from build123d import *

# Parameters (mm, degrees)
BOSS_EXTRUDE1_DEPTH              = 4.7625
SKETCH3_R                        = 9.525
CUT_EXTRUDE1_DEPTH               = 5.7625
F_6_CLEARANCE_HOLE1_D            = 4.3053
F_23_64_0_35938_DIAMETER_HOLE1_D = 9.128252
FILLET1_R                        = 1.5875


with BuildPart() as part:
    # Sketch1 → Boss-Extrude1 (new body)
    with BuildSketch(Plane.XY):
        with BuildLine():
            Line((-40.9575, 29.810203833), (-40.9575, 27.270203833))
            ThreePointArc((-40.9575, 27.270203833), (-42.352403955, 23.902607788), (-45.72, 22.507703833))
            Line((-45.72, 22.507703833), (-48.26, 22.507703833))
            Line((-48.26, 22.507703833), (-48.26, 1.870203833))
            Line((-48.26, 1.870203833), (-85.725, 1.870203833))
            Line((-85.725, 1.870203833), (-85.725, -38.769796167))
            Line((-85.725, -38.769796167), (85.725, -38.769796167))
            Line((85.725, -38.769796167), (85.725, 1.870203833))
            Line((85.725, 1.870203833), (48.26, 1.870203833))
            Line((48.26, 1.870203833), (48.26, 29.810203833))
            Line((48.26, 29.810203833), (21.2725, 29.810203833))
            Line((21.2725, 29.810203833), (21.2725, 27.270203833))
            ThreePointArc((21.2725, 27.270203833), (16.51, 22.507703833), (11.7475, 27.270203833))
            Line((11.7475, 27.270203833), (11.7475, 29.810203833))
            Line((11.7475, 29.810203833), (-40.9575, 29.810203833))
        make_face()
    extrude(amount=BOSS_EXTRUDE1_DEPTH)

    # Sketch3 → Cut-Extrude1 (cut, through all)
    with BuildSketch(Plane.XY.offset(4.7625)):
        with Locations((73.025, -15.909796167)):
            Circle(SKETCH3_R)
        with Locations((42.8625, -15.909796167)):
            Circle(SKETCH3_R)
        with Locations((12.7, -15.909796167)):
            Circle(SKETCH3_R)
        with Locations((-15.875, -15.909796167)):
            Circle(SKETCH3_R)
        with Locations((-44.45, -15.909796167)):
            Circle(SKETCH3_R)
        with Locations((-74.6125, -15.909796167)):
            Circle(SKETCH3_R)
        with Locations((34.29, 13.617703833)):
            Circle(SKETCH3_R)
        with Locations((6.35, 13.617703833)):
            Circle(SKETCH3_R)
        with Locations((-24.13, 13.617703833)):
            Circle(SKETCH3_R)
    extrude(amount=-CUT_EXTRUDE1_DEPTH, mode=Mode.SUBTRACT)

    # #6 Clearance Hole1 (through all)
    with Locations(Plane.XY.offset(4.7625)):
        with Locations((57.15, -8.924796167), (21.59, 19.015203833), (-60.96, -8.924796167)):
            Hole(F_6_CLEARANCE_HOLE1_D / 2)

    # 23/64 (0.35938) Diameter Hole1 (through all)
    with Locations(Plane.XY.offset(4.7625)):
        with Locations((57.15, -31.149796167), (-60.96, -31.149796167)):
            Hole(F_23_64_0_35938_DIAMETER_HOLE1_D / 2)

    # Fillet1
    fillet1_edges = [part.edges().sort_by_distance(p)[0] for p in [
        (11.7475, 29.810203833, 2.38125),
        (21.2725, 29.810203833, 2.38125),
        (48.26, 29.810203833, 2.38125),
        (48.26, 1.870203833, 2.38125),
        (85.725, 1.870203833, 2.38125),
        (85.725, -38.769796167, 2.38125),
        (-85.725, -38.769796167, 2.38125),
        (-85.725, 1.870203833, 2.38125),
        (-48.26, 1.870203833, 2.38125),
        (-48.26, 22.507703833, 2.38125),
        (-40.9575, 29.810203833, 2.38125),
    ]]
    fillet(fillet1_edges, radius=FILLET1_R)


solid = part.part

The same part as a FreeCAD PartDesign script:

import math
import FreeCAD as App
import Part
import Sketcher
from FreeCAD import Vector
Q = App.Units.Quantity


def edges_at(feature, points):
    """Names of the edges that pass closest to the given points."""
    edges = feature.Shape.Edges
    near = lambda p: min(range(len(edges)), key=lambda i: edges[i].distToShape(Part.Vertex(*p))[0])
    return sorted({f"Edge{near(p) + 1}" for p in points})

doc = App.newDocument("Part")
body = doc.addObject("PartDesign::Body", "Body")

# Sketch on XY plane
sketch1 = body.newObject("Sketcher::SketchObject", "Sketch")
sketch1.AttachmentSupport = (doc.getObject("XY_Plane"), [""])
sketch1.MapMode = "FlatFace"
sketch1.addGeometry(Part.LineSegment(Vector(-41, 29.8, 0), Vector(-41, 27.3, 0)), False)
sketch1.addGeometry(Part.ArcOfCircle(Part.Circle(Vector(-45.7, 27.3, 0), Vector(0, 0, 1), 4.8), math.radians(-90), math.radians(0)), False)
sketch1.addGeometry(Part.LineSegment(Vector(-45.7, 22.5, 0), Vector(-48.3, 22.5, 0)), False)
sketch1.addGeometry(Part.LineSegment(Vector(-48.3, 22.5, 0), Vector(-48.3, 1.9, 0)), False)
sketch1.addGeometry(Part.LineSegment(Vector(-48.3, 1.9, 0), Vector(-85.7, 1.9, 0)), False)
sketch1.addGeometry(Part.LineSegment(Vector(-85.7, 1.9, 0), Vector(-85.7, -38.8, 0)), False)
sketch1.addGeometry(Part.LineSegment(Vector(-85.7, -38.8, 0), Vector(85.7, -38.8, 0)), False)
sketch1.addGeometry(Part.LineSegment(Vector(85.7, -38.8, 0), Vector(85.7, 1.9, 0)), False)
sketch1.addGeometry(Part.LineSegment(Vector(85.7, 1.9, 0), Vector(48.3, 1.9, 0)), False)
sketch1.addGeometry(Part.LineSegment(Vector(48.3, 1.9, 0), Vector(48.3, 29.8, 0)), False)
sketch1.addGeometry(Part.LineSegment(Vector(48.3, 29.8, 0), Vector(21.3, 29.8, 0)), False)
sketch1.addGeometry(Part.LineSegment(Vector(21.3, 29.8, 0), Vector(21.3, 27.3, 0)), False)
sketch1.addGeometry(Part.ArcOfCircle(Part.Circle(Vector(16.5, 27.3, 0), Vector(0, 0, 1), 4.8), math.radians(180), math.radians(360)), False)
sketch1.addGeometry(Part.LineSegment(Vector(11.7, 27.3, 0), Vector(11.7, 29.8, 0)), False)
sketch1.addGeometry(Part.LineSegment(Vector(11.7, 29.8, 0), Vector(-41, 29.8, 0)), False)
sketch1.addConstraint(Sketcher.Constraint("Tangent", 0, 2, 1, 2))
sketch1.addConstraint(Sketcher.Constraint("Tangent", 1, 1, 2, 1))
sketch1.addConstraint(Sketcher.Constraint("Coincident", 2, 2, 3, 1))
sketch1.addConstraint(Sketcher.Constraint("Coincident", 3, 2, 4, 1))
sketch1.addConstraint(Sketcher.Constraint("Coincident", 4, 2, 5, 1))
sketch1.addConstraint(Sketcher.Constraint("Coincident", 5, 2, 6, 1))
sketch1.addConstraint(Sketcher.Constraint("Coincident", 6, 2, 7, 1))
sketch1.addConstraint(Sketcher.Constraint("Coincident", 7, 2, 8, 1))
sketch1.addConstraint(Sketcher.Constraint("Coincident", 8, 2, 9, 1))
sketch1.addConstraint(Sketcher.Constraint("Coincident", 9, 2, 10, 1))
sketch1.addConstraint(Sketcher.Constraint("Coincident", 10, 2, 11, 1))
sketch1.addConstraint(Sketcher.Constraint("Tangent", 11, 2, 12, 2))
sketch1.addConstraint(Sketcher.Constraint("Tangent", 12, 1, 13, 1))
sketch1.addConstraint(Sketcher.Constraint("Coincident", 13, 2, 14, 1))
sketch1.addConstraint(Sketcher.Constraint("Coincident", 14, 2, 0, 1))
sketch1.addConstraint(Sketcher.Constraint("Vertical", 0))
sketch1.addConstraint(Sketcher.Constraint("Horizontal", 2))
sketch1.addConstraint(Sketcher.Constraint("Vertical", 3))
sketch1.addConstraint(Sketcher.Constraint("Horizontal", 4))
sketch1.addConstraint(Sketcher.Constraint("Vertical", 5))
sketch1.addConstraint(Sketcher.Constraint("Horizontal", 6))
sketch1.addConstraint(Sketcher.Constraint("Vertical", 7))
sketch1.addConstraint(Sketcher.Constraint("Horizontal", 8))
sketch1.addConstraint(Sketcher.Constraint("Vertical", 9))
sketch1.addConstraint(Sketcher.Constraint("Horizontal", 10))
sketch1.addConstraint(Sketcher.Constraint("Vertical", 11))
sketch1.addConstraint(Sketcher.Constraint("Vertical", 13))
sketch1.addConstraint(Sketcher.Constraint("Horizontal", 14))
sketch1.addConstraint(Sketcher.Constraint("Equal", 1, 12))
sketch1.addConstraint(Sketcher.Constraint("Symmetric", 4, 2, 7, 2, -2))
sketch1.addConstraint(Sketcher.Constraint("Horizontal", 1, 3, 12, 3))
sketch1.addConstraint(Sketcher.Constraint("Horizontal", 10, 2, 13, 2))
sketch1.addConstraint(Sketcher.Constraint("Equal", 4, 8))
sketch1.addConstraint(Sketcher.Constraint("Equal", 2, 0))
sketch1.addConstraint(Sketcher.Constraint("DistanceX", 2, 2, 2, 1, Q("0.1 in")))
sketch1.addConstraint(Sketcher.Constraint("DistanceY", 5, 2, 5, 1, Q("1.6 in")))
sketch1.addConstraint(Sketcher.Constraint("DistanceY", 9, 1, 9, 2, Q("1.1 in")))
sketch1.addConstraint(Sketcher.Constraint("Radius", 1, Q("0.1875 in")))
sketch1.addConstraint(Sketcher.Constraint("DistanceX", 6, 1, 6, 2, Q("6.75 in")))
sketch1.addConstraint(Sketcher.Constraint("DistanceX", 1, 3, -1, 1, Q("1.8 in")))
sketch1.addConstraint(Sketcher.Constraint("DistanceX", 10, 2, 10, 1, Q("1.0625 in")))
sketch1.addConstraint(Sketcher.Constraint("DistanceY", -1, 1, 1, 3, Q("27.270204 mm")))
pad1 = body.newObject("PartDesign::Pad", "Pad")
pad1.Profile = sketch1
pad1.Length = Q("0.1875 in")

# Sketch on XY plane
sketch2 = body.newObject("Sketcher::SketchObject", "Sketch001")
sketch2.AttachmentSupport = (doc.getObject("XY_Plane"), [""])
sketch2.MapMode = "FlatFace"
sketch2.AttachmentOffset = App.Placement(Vector(0, 0, 0.1875 * 25.4), App.Rotation())
sketch2.addGeometry(Part.Circle(Vector(73, -16, 0), Vector(0, 0, 1), 10), False)
sketch2.addGeometry(Part.Circle(Vector(43, -16, 0), Vector(0, 0, 1), 10), False)
sketch2.addGeometry(Part.Circle(Vector(13, -16, 0), Vector(0, 0, 1), 10), False)
sketch2.addGeometry(Part.Circle(Vector(-16, -16, 0), Vector(0, 0, 1), 10), False)
sketch2.addGeometry(Part.Circle(Vector(-44, -16, 0), Vector(0, 0, 1), 10), False)
sketch2.addGeometry(Part.Circle(Vector(-75, -16, 0), Vector(0, 0, 1), 10), False)
sketch2.addGeometry(Part.Circle(Vector(34, 14, 0), Vector(0, 0, 1), 10), False)
sketch2.addGeometry(Part.Circle(Vector(6, 14, 0), Vector(0, 0, 1), 10), False)
sketch2.addGeometry(Part.Circle(Vector(-24, 14, 0), Vector(0, 0, 1), 10), False)
sketch2.addConstraint(Sketcher.Constraint("Equal", 0, 1))
sketch2.addConstraint(Sketcher.Constraint("Equal", 1, 2))
sketch2.addConstraint(Sketcher.Constraint("Equal", 2, 3))
sketch2.addConstraint(Sketcher.Constraint("Equal", 3, 4))
sketch2.addConstraint(Sketcher.Constraint("Equal", 4, 5))
sketch2.addConstraint(Sketcher.Constraint("Equal", 5, 6))
sketch2.addConstraint(Sketcher.Constraint("Equal", 6, 7))
sketch2.addConstraint(Sketcher.Constraint("Equal", 7, 8))
sketch2.addConstraint(Sketcher.Constraint("Horizontal", 0, 3, 1, 3))
sketch2.addConstraint(Sketcher.Constraint("Horizontal", 1, 3, 2, 3))
sketch2.addConstraint(Sketcher.Constraint("Horizontal", 2, 3, 3, 3))
sketch2.addConstraint(Sketcher.Constraint("Horizontal", 3, 3, 4, 3))
sketch2.addConstraint(Sketcher.Constraint("Horizontal", 4, 3, 5, 3))
sketch2.addConstraint(Sketcher.Constraint("Horizontal", 6, 3, 7, 3))
sketch2.addConstraint(Sketcher.Constraint("Horizontal", 7, 3, 8, 3))
sketch2.addConstraint(Sketcher.Constraint("Diameter", 0, Q("0.75 in")))
sketch2.addConstraint(Sketcher.Constraint("DistanceX", 4, 3, 7, 3, Q("2 in")))
sketch2.addConstraint(Sketcher.Constraint("DistanceX", -1, 1, 2, 3, Q("0.5 in")))
sketch2.addConstraint(Sketcher.Constraint("DistanceX", 3, 3, 0, 3, Q("3.5 in")))
sketch2.addConstraint(Sketcher.Constraint("DistanceX", 4, 3, 6, 3, Q("3.1 in")))
sketch2.addConstraint(Sketcher.Constraint("DistanceX", 8, 3, 7, 3, Q("1.2 in")))
sketch2.addConstraint(Sketcher.Constraint("DistanceX", 4, 3, -1, 1, Q("1.75 in")))
sketch2.addConstraint(Sketcher.Constraint("DistanceX", -1, 1, 0, 3, Q("2.875 in")))
sketch2.addConstraint(Sketcher.Constraint("DistanceX", -1, 1, 1, 3, Q("1.6875 in")))
sketch2.addConstraint(Sketcher.Constraint("DistanceX", 5, 3, -1, 1, Q("2.9375 in")))
sketch2.addConstraint(Sketcher.Constraint("DistanceY", 1, 3, 6, 3, Q("1.1625 in")))
sketch2.addConstraint(Sketcher.Constraint("DistanceY", 0, 3, -1, 1, Q("15.909796 mm")))
pocket1 = body.newObject("PartDesign::Pocket", "Pocket")
pocket1.Profile = sketch2
pocket1.Type = "ThroughAll"

# Sketch on XY plane
sketch3 = body.newObject("Sketcher::SketchObject", "Sketch002")
sketch3.AttachmentSupport = (doc.getObject("XY_Plane"), [""])
sketch3.MapMode = "FlatFace"
sketch3.AttachmentOffset = App.Placement(Vector(0, 0, 0.1875 * 25.4), App.Rotation())
sketch3.addGeometry(Part.Circle(Vector(57.1, -8.9, 0), Vector(0, 0, 1), 2.2), False)
sketch3.addGeometry(Part.Circle(Vector(21.6, 19, 0), Vector(0, 0, 1), 2.2), False)
sketch3.addGeometry(Part.Circle(Vector(-61, -8.9, 0), Vector(0, 0, 1), 2.2), False)
sketch3.addConstraint(Sketcher.Constraint("Equal", 0, 1))
sketch3.addConstraint(Sketcher.Constraint("Equal", 1, 2))
sketch3.addConstraint(Sketcher.Constraint("Horizontal", 0, 3, 2, 3))
sketch3.addConstraint(Sketcher.Constraint("Diameter", 0, Q("0.1695 in")))
sketch3.addConstraint(Sketcher.Constraint("DistanceX", 2, 3, -1, 1, Q("2.4 in")))
sketch3.addConstraint(Sketcher.Constraint("DistanceX", 1, 3, 0, 3, Q("1.4 in")))
sketch3.addConstraint(Sketcher.Constraint("DistanceY", 0, 3, 1, 3, Q("1.1 in")))
sketch3.addConstraint(Sketcher.Constraint("DistanceX", -1, 1, 0, 3, Q("2.25 in")))
sketch3.addConstraint(Sketcher.Constraint("DistanceY", 0, 3, -1, 1, Q("8.924796 mm")))
doc.recompute()
hole = body.newObject("PartDesign::Hole", "Hole")
hole.Profile = sketch3
hole.ThreadType = "None"
hole.Diameter = Q("0.1695 in")
hole.DepthType = "ThroughAll"

# Sketch on XY plane
sketch4 = body.newObject("Sketcher::SketchObject", "Sketch003")
sketch4.AttachmentSupport = (doc.getObject("XY_Plane"), [""])
sketch4.MapMode = "FlatFace"
sketch4.AttachmentOffset = App.Placement(Vector(0, 0, 0.1875 * 25.4), App.Rotation())
sketch4.addGeometry(Part.Circle(Vector(57.1, -31.1, 0), Vector(0, 0, 1), 4.6), False)
sketch4.addGeometry(Part.Circle(Vector(-61, -31.1, 0), Vector(0, 0, 1), 4.6), False)
sketch4.addConstraint(Sketcher.Constraint("Equal", 0, 1))
sketch4.addConstraint(Sketcher.Constraint("Horizontal", 0, 3, 1, 3))
sketch4.addConstraint(Sketcher.Constraint("DistanceX", 1, 3, -1, 1, Q("2.4 in")))
sketch4.addConstraint(Sketcher.Constraint("DistanceX", -1, 1, 0, 3, Q("2.25 in")))
sketch4.addConstraint(Sketcher.Constraint("Diameter", 0, Q("9.128252 mm")))
sketch4.addConstraint(Sketcher.Constraint("DistanceY", 0, 3, -1, 1, Q("31.149796 mm")))
doc.recompute()
hole2 = body.newObject("PartDesign::Hole", "Hole001")
hole2.Profile = sketch4
hole2.ThreadType = "None"
hole2.Diameter = 9.128252
hole2.DepthType = "ThroughAll"
doc.recompute()

fillet = body.newObject("PartDesign::Fillet", "Fillet")
fillet.Base = (hole2, edges_at(hole2, [
    (11.748, 29.81, 2.381),
    (21.273, 29.81, 2.381),
    (48.26, 29.81, 2.381),
    (48.26, 1.87, 2.381),
    (85.725, 1.87, 2.381),
    (85.725, -38.77, 2.381),
    (-85.725, -38.77, 2.381),
    (-85.725, 1.87, 2.381),
    (-48.26, 1.87, 2.381),
    (-48.26, 22.508, 2.381),
    (-40.958, 29.81, 2.381),
]))
fillet.Radius = Q("0.0625 in")

doc.recompute()
